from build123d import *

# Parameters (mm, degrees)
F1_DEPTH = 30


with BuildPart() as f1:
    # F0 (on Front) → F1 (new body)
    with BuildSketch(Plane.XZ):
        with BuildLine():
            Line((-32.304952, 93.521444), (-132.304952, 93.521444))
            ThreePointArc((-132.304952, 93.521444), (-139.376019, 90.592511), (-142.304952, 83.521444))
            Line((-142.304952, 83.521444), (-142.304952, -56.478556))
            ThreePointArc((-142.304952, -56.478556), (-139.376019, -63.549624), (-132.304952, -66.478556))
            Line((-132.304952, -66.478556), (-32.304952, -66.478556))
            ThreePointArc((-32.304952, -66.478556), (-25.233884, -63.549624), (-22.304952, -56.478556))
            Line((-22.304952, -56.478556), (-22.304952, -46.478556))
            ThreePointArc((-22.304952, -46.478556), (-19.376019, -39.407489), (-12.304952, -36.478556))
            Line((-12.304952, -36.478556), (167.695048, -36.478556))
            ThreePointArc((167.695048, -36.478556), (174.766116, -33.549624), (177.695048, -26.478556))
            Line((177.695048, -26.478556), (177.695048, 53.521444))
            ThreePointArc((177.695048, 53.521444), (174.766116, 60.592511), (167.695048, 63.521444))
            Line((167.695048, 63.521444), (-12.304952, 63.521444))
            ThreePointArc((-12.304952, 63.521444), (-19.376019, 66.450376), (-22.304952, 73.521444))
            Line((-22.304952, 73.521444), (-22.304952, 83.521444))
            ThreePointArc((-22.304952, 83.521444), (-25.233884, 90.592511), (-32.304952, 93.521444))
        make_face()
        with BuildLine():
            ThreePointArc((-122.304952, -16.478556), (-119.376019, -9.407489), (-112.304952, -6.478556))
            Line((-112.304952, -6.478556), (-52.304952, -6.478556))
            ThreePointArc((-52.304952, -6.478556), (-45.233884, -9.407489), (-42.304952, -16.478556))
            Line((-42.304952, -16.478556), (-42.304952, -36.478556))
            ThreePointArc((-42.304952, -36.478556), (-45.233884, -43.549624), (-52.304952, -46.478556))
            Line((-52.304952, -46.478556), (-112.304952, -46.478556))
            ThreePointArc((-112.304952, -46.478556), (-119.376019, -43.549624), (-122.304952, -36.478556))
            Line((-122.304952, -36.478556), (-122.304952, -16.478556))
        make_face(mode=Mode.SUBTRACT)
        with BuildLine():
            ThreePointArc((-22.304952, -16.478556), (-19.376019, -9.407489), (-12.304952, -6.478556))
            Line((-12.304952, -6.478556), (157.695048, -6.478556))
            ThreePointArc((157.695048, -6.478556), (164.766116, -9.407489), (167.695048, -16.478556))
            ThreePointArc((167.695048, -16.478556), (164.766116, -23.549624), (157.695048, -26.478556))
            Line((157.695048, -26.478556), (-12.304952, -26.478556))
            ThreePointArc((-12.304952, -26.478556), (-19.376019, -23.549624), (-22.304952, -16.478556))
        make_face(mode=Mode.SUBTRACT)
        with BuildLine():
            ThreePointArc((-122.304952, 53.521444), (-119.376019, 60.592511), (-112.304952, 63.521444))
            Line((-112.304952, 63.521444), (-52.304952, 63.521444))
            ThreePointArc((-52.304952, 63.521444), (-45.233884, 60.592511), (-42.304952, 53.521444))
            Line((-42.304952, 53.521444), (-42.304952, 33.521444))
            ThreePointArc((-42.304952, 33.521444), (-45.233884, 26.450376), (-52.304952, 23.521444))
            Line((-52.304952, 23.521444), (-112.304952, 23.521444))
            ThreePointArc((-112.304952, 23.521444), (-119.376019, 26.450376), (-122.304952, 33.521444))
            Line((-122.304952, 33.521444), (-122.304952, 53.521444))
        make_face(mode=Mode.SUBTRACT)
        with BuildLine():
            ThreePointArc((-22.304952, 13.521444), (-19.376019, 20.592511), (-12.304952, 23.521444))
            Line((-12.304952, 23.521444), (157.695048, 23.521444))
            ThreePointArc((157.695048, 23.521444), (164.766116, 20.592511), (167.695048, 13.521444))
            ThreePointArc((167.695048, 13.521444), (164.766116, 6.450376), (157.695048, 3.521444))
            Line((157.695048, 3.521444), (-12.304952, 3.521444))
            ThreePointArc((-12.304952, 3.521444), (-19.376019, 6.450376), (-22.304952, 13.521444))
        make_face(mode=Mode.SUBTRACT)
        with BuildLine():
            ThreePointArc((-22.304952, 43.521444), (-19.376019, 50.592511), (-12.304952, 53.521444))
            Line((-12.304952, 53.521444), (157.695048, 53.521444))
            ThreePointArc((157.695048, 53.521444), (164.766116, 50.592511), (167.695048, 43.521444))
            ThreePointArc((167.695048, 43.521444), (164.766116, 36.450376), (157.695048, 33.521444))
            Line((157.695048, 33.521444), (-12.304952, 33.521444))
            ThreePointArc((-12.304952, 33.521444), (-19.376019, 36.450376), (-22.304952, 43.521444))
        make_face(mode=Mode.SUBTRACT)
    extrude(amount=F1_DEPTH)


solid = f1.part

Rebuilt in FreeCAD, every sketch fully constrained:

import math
import FreeCAD as App
import Part
import Sketcher
Q = App.Units.Quantity

doc = App.newDocument("Part")
params = doc.addObject("Spreadsheet::Sheet", "Params")
for row, (alias, value) in enumerate([
    ("sketch1_radius", "10.000001 mm"),
    ("sketch1_width", "100 mm"),
    ("sketch1_width2", "180 mm"),
    ("sketch1_width3", "60 mm"),
    ("sketch1_height", "140 mm"),
    ("pad1_length", "30 mm"),
], start=1):
    params.set(f"A{row}", alias)
    params.set(f"B{row}", "=" + value)
    params.setAlias(f"B{row}", alias)

body = doc.addObject("PartDesign::Body", "Body")

sketch1 = doc.addObject("Sketcher::SketchObject", "Sketch")
body.addObject(sketch1)
sketch1.AttachmentSupport = (doc.XZ_Plane, [""])
sketch1.MapMode = "FlatFace"
sketch1.addGeometry([
    Part.LineSegment(App.Vector(-32, 94, 0), App.Vector(-132, 94, 0)),
    Part.ArcOfCircle(Part.Circle(App.Vector(-132, 84, 0), App.Vector(0, 0, 1), 10), math.radians(90), math.radians(180)),
    Part.LineSegment(App.Vector(-142, 84, 0), App.Vector(-142, -56, 0)),
    Part.ArcOfCircle(Part.Circle(App.Vector(-132, -56, 0), App.Vector(0, 0, 1), 10), math.radians(-180), math.radians(-90)),
    Part.LineSegment(App.Vector(-132, -66, 0), App.Vector(-32, -66, 0)),
    Part.ArcOfCircle(Part.Circle(App.Vector(-32, -56, 0), App.Vector(0, 0, 1), 10), math.radians(-90), math.radians(0)),
    Part.LineSegment(App.Vector(-22, -56, 0), App.Vector(-22, -46, 0)),
    Part.ArcOfCircle(Part.Circle(App.Vector(-12, -46, 0), App.Vector(0, 0, 1), 10), math.radians(90), math.radians(180)),
    Part.LineSegment(App.Vector(-12, -36, 0), App.Vector(168, -36, 0)),
    Part.ArcOfCircle(Part.Circle(App.Vector(168, -26, 0), App.Vector(0, 0, 1), 10), math.radians(-90), math.radians(0)),
    Part.LineSegment(App.Vector(178, -26, 0), App.Vector(178, 54, 0)),
    Part.ArcOfCircle(Part.Circle(App.Vector(168, 54, 0), App.Vector(0, 0, 1), 10), math.radians(0), math.radians(90)),
    Part.LineSegment(App.Vector(168, 64, 0), App.Vector(-12, 64, 0)),
    Part.ArcOfCircle(Part.Circle(App.Vector(-12, 74, 0), App.Vector(0, 0, 1), 10), math.radians(-180), math.radians(-90)),
    Part.LineSegment(App.Vector(-22, 74, 0), App.Vector(-22, 84, 0)),
    Part.ArcOfCircle(Part.Circle(App.Vector(-32, 84, 0), App.Vector(0, 0, 1), 10), math.radians(0), math.radians(90)),
    Part.LineSegment(App.Vector(-122, -36, 0), App.Vector(-122, -16, 0)),
    Part.ArcOfCircle(Part.Circle(App.Vector(-112, -16, 0), App.Vector(0, 0, 1), 10), math.radians(90), math.radians(180)),
    Part.LineSegment(App.Vector(-112, -6, 0), App.Vector(-52, -6, 0)),
    Part.ArcOfCircle(Part.Circle(App.Vector(-52, -16, 0), App.Vector(0, 0, 1), 10), math.radians(0), math.radians(90)),
    Part.LineSegment(App.Vector(-42, -16, 0), App.Vector(-42, -36, 0)),
    Part.ArcOfCircle(Part.Circle(App.Vector(-52, -36, 0), App.Vector(0, 0, 1), 10), math.radians(-90), math.radians(0)),
    Part.LineSegment(App.Vector(-52, -46, 0), App.Vector(-112, -46, 0)),
    Part.ArcOfCircle(Part.Circle(App.Vector(-112, -36, 0), App.Vector(0, 0, 1), 10), math.radians(-180), math.radians(-90)),
    Part.ArcOfCircle(Part.Circle(App.Vector(-12, -16, 0), App.Vector(0, 0, 1), 10), math.radians(-180), math.radians(-90)),
    Part.ArcOfCircle(Part.Circle(App.Vector(-12, -16, 0), App.Vector(0, 0, 1), 10), math.radians(90), math.radians(180)),
    Part.LineSegment(App.Vector(-12, -6, 0), App.Vector(158, -6, 0)),
    Part.ArcOfCircle(Part.Circle(App.Vector(158, -16, 0), App.Vector(0, 0, 1), 10), math.radians(0), math.radians(90)),
    Part.ArcOfCircle(Part.Circle(App.Vector(158, -16, 0), App.Vector(0, 0, 1), 10), math.radians(-90), math.radians(0)),
    Part.LineSegment(App.Vector(158, -26, 0), App.Vector(-12, -26, 0)),
    Part.LineSegment(App.Vector(-122, 34, 0), App.Vector(-122, 54, 0)),
    Part.ArcOfCircle(Part.Circle(App.Vector(-112, 54, 0), App.Vector(0, 0, 1), 10), math.radians(90), math.radians(180)),
    Part.LineSegment(App.Vector(-112, 64, 0), App.Vector(-52, 64, 0)),
    Part.ArcOfCircle(Part.Circle(App.Vector(-52, 54, 0), App.Vector(0, 0, 1), 10), math.radians(0), math.radians(90)),
    Part.LineSegment(App.Vector(-42, 54, 0), App.Vector(-42, 34, 0)),
    Part.ArcOfCircle(Part.Circle(App.Vector(-52, 34, 0), App.Vector(0, 0, 1), 10), math.radians(-90), math.radians(0)),
    Part.LineSegment(App.Vector(-52, 24, 0), App.Vector(-112, 24, 0)),
    Part.ArcOfCircle(Part.Circle(App.Vector(-112, 34, 0), App.Vector(0, 0, 1), 10), math.radians(-180), math.radians(-90)),
    Part.ArcOfCircle(Part.Circle(App.Vector(-12, 14, 0), App.Vector(0, 0, 1), 10), math.radians(-180), math.radians(-90)),
    Part.ArcOfCircle(Part.Circle(App.Vector(-12, 14, 0), App.Vector(0, 0, 1), 10), math.radians(90), math.radians(180)),
    Part.LineSegment(App.Vector(-12, 24, 0), App.Vector(158, 24, 0)),
    Part.ArcOfCircle(Part.Circle(App.Vector(158, 14, 0), App.Vector(0, 0, 1), 10), math.radians(0), math.radians(90)),
    Part.ArcOfCircle(Part.Circle(App.Vector(158, 14, 0), App.Vector(0, 0, 1), 10), math.radians(-90), math.radians(0)),
    Part.LineSegment(App.Vector(158, 4, 0), App.Vector(-12, 4, 0)),
    Part.ArcOfCircle(Part.Circle(App.Vector(-12, 44, 0), App.Vector(0, 0, 1), 10), math.radians(-180), math.radians(-90)),
    Part.ArcOfCircle(Part.Circle(App.Vector(-12, 44, 0), App.Vector(0, 0, 1), 10), math.radians(90), math.radians(180)),
    Part.LineSegment(App.Vector(-12, 54, 0), App.Vector(158, 54, 0)),
    Part.ArcOfCircle(Part.Circle(App.Vector(158, 44, 0), App.Vector(0, 0, 1), 10), math.radians(0), math.radians(90)),
    Part.ArcOfCircle(Part.Circle(App.Vector(158, 44, 0), App.Vector(0, 0, 1), 10), math.radians(-90), math.radians(0)),
    Part.LineSegment(App.Vector(158, 34, 0), App.Vector(-12, 34, 0)),
], False)
sketch1.addConstraint([
    Sketcher.Constraint("Tangent", 0, 2, 1, 1),
    Sketcher.Constraint("Tangent", 1, 2, 2, 1),
    Sketcher.Constraint("Tangent", 2, 2, 3, 1),
    Sketcher.Constraint("Tangent", 3, 2, 4, 1),
    Sketcher.Constraint("Tangent", 4, 2, 5, 1),
    Sketcher.Constraint("Tangent", 5, 2, 6, 1),
    Sketcher.Constraint("Tangent", 6, 2, 7, 2),
    Sketcher.Constraint("Tangent", 7, 1, 8, 1),
    Sketcher.Constraint("Tangent", 8, 2, 9, 1),
    Sketcher.Constraint("Tangent", 9, 2, 10, 1),
    Sketcher.Constraint("Tangent", 10, 2, 11, 1),
    Sketcher.Constraint("Tangent", 11, 2, 12, 1),
    Sketcher.Constraint("Tangent", 12, 2, 13, 2),
    Sketcher.Constraint("Tangent", 13, 1, 14, 1),
    Sketcher.Constraint("Tangent", 14, 2, 15, 1),
    Sketcher.Constraint("Tangent", 15, 2, 0, 1),
    Sketcher.Constraint("Tangent", 16, 2, 17, 2),
    Sketcher.Constraint("Tangent", 17, 1, 18, 1),
    Sketcher.Constraint("Tangent", 18, 2, 19, 2),
    Sketcher.Constraint("Tangent", 19, 1, 20, 1),
    Sketcher.Constraint("Tangent", 20, 2, 21, 2),
    Sketcher.Constraint("Tangent", 21, 1, 22, 1),
    Sketcher.Constraint("Tangent", 22, 2, 23, 2),
    Sketcher.Constraint("Tangent", 23, 1, 16, 1),
    Sketcher.Constraint("Tangent", 24, 1, 25, 2),
    Sketcher.Constraint("Tangent", 25, 1, 26, 1),
    Sketcher.Constraint("Tangent", 26, 2, 27, 2),
    Sketcher.Constraint("Tangent", 27, 1, 28, 2),
    Sketcher.Constraint("Tangent", 28, 1, 29, 1),
    Sketcher.Constraint("Tangent", 29, 2, 24, 2),
    Sketcher.Constraint("Tangent", 30, 2, 31, 2),
    Sketcher.Constraint("Tangent", 31, 1, 32, 1),
    Sketcher.Constraint("Tangent", 32, 2, 33, 2),
    Sketcher.Constraint("Tangent", 33, 1, 34, 1),
    Sketcher.Constraint("Tangent", 34, 2, 35, 2),
    Sketcher.Constraint("Tangent", 35, 1, 36, 1),
    Sketcher.Constraint("Tangent", 36, 2, 37, 2),
    Sketcher.Constraint("Tangent", 37, 1, 30, 1),
    Sketcher.Constraint("Tangent", 38, 1, 39, 2),
    Sketcher.Constraint("Tangent", 39, 1, 40, 1),
    Sketcher.Constraint("Tangent", 40, 2, 41, 2),
    Sketcher.Constraint("Tangent", 41, 1, 42, 2),
    Sketcher.Constraint("Tangent", 42, 1, 43, 1),
    Sketcher.Constraint("Tangent", 43, 2, 38, 2),
    Sketcher.Constraint("Tangent", 44, 1, 45, 2),
    Sketcher.Constraint("Tangent", 45, 1, 46, 1),
    Sketcher.Constraint("Tangent", 46, 2, 47, 2),
    Sketcher.Constraint("Tangent", 47, 1, 48, 2),
    Sketcher.Constraint("Tangent", 48, 1, 49, 1),
    Sketcher.Constraint("Tangent", 49, 2, 44, 2),
    Sketcher.Constraint("Horizontal", 0),
    Sketcher.Constraint("Vertical", 2),
    Sketcher.Constraint("Horizontal", 4),
    Sketcher.Constraint("Vertical", 6),
    Sketcher.Constraint("Horizontal", 8),
    Sketcher.Constraint("Vertical", 10),
    Sketcher.Constraint("Horizontal", 12),
    Sketcher.Constraint("Vertical", 14),
    Sketcher.Constraint("Vertical", 16),
    Sketcher.Constraint("Horizontal", 18),
    Sketcher.Constraint("Vertical", 20),
    Sketcher.Constraint("Horizontal", 22),
    Sketcher.Constraint("Horizontal", 26),
    Sketcher.Constraint("Horizontal", 29),
    Sketcher.Constraint("Vertical", 30),
    Sketcher.Constraint("Horizontal", 32),
    Sketcher.Constraint("Vertical", 34),
    Sketcher.Constraint("Horizontal", 36),
    Sketcher.Constraint("Horizontal", 40),
    Sketcher.Constraint("Horizontal", 43),
    Sketcher.Constraint("Horizontal", 46),
    Sketcher.Constraint("Horizontal", 49),
    Sketcher.Constraint("Equal", 1, 3),
    Sketcher.Constraint("Equal", 3, 5),
    Sketcher.Constraint("Equal", 3, 7),
    Sketcher.Constraint("Equal", 5, 9),
    Sketcher.Constraint("Equal", 9, 11),
    Sketcher.Constraint("Equal", 11, 13),
    Sketcher.Constraint("Equal", 13, 15),
    Sketcher.Constraint("Equal", 15, 17),
    Sketcher.Constraint("Equal", 17, 19),
    Sketcher.Constraint("Equal", 19, 21),
    Sketcher.Constraint("Equal", 21, 23),
    Sketcher.Constraint("Equal", 23, 24),
    Sketcher.Constraint("Equal", 24, 25),
    Sketcher.Constraint("Equal", 25, 27),
    Sketcher.Constraint("Equal", 27, 31),
    Sketcher.Constraint("Equal", 31, 33),
    Sketcher.Constraint("Equal", 33, 35),
    Sketcher.Constraint("Equal", 35, 37),
    Sketcher.Constraint("Equal", 37, 38),
    Sketcher.Constraint("Equal", 38, 39),
    Sketcher.Constraint("Equal", 39, 41),
    Sketcher.Constraint("Equal", 42, 44),
    Sketcher.Constraint("Equal", 44, 45),
    Sketcher.Constraint("Equal", 45, 47),
    Sketcher.Constraint("Horizontal", 19, 3, 25, 3),
    Sketcher.Constraint("Horizontal", 11, 3, 31, 3),
    Sketcher.Constraint("Horizontal", 23, 3, 7, 1),
    Sketcher.Constraint("Horizontal", 19, 1, 24, 1),
    Sketcher.Constraint("Horizontal", 24, 1, 27, 1),
    Sketcher.Constraint("Horizontal", 9, 2, 28, 1),
    Sketcher.Constraint("Horizontal", 42, 3, 38, 1),
    Sketcher.Constraint("Horizontal", 36, 2, 39, 1),
    Sketcher.Constraint("Horizontal", 38, 1, 41, 1),
    Sketcher.Constraint("Horizontal", 48, 3, 44, 1),
    Sketcher.Constraint("Horizontal", 33, 1, 45, 1),
    Sketcher.Constraint("Horizontal", 44, 1, 47, 1),
    Sketcher.Constraint("Horizontal", 37, 1, 48, 1),
    Sketcher.Constraint("Vertical", 7, 3, 13, 3),
    Sketcher.Constraint("Vertical", 13, 3, 24, 3),
    Sketcher.Constraint("Vertical", 23, 3, 31, 3),
    Sketcher.Constraint("Vertical", 21, 3, 33, 3),
    Sketcher.Constraint("Vertical", 25, 3, 38, 3),
    Sketcher.Constraint("Vertical", 28, 3, 41, 3),
    Sketcher.Constraint("Vertical", 39, 3, 44, 3),
    Sketcher.Constraint("Vertical", 42, 3, 47, 3),
    Sketcher.Constraint("Vertical", 11, 2, 27, 1),
    Sketcher.Constraint("Equal", 6, 14),
    Sketcher.Constraint("Radius", 3, Q("10.000001 mm")),
    Sketcher.Constraint("DistanceX", 0, 2, 0, 1, Q("100 mm")),
    Sketcher.Constraint("DistanceX", 8, 1, 8, 2, Q("180 mm")),
    Sketcher.Constraint("DistanceX", 18, 1, 18, 2, Q("60 mm")),
    Sketcher.Constraint("DistanceY", 2, 2, 2, 1, Q("140 mm")),
    Sketcher.Constraint("DistanceY", 6, 1, 6, 2, Q("10 mm")),
    Sketcher.Constraint("DistanceX", 1, 3, -1, 1, Q("132.304949 mm")),
    Sketcher.Constraint("DistanceY", -1, 1, 1, 3, Q("83.521441 mm")),
    Sketcher.Constraint("DistanceX", 17, 3, -1, 1, Q("112.304949 mm")),
])
sketch1.setExpression("Constraints[119]", "Params.sketch1_radius")
sketch1.setExpression("Constraints[120]", "Params.sketch1_width")
sketch1.setExpression("Constraints[121]", "Params.sketch1_width2")
sketch1.setExpression("Constraints[122]", "Params.sketch1_width3")
sketch1.setExpression("Constraints[123]", "Params.sketch1_height")
pad1 = doc.addObject("PartDesign::Pad", "Pad")
body.addObject(pad1)
pad1.Profile = sketch1
pad1.setExpression("Length", "Params.pad1_length")

doc.recompute()
